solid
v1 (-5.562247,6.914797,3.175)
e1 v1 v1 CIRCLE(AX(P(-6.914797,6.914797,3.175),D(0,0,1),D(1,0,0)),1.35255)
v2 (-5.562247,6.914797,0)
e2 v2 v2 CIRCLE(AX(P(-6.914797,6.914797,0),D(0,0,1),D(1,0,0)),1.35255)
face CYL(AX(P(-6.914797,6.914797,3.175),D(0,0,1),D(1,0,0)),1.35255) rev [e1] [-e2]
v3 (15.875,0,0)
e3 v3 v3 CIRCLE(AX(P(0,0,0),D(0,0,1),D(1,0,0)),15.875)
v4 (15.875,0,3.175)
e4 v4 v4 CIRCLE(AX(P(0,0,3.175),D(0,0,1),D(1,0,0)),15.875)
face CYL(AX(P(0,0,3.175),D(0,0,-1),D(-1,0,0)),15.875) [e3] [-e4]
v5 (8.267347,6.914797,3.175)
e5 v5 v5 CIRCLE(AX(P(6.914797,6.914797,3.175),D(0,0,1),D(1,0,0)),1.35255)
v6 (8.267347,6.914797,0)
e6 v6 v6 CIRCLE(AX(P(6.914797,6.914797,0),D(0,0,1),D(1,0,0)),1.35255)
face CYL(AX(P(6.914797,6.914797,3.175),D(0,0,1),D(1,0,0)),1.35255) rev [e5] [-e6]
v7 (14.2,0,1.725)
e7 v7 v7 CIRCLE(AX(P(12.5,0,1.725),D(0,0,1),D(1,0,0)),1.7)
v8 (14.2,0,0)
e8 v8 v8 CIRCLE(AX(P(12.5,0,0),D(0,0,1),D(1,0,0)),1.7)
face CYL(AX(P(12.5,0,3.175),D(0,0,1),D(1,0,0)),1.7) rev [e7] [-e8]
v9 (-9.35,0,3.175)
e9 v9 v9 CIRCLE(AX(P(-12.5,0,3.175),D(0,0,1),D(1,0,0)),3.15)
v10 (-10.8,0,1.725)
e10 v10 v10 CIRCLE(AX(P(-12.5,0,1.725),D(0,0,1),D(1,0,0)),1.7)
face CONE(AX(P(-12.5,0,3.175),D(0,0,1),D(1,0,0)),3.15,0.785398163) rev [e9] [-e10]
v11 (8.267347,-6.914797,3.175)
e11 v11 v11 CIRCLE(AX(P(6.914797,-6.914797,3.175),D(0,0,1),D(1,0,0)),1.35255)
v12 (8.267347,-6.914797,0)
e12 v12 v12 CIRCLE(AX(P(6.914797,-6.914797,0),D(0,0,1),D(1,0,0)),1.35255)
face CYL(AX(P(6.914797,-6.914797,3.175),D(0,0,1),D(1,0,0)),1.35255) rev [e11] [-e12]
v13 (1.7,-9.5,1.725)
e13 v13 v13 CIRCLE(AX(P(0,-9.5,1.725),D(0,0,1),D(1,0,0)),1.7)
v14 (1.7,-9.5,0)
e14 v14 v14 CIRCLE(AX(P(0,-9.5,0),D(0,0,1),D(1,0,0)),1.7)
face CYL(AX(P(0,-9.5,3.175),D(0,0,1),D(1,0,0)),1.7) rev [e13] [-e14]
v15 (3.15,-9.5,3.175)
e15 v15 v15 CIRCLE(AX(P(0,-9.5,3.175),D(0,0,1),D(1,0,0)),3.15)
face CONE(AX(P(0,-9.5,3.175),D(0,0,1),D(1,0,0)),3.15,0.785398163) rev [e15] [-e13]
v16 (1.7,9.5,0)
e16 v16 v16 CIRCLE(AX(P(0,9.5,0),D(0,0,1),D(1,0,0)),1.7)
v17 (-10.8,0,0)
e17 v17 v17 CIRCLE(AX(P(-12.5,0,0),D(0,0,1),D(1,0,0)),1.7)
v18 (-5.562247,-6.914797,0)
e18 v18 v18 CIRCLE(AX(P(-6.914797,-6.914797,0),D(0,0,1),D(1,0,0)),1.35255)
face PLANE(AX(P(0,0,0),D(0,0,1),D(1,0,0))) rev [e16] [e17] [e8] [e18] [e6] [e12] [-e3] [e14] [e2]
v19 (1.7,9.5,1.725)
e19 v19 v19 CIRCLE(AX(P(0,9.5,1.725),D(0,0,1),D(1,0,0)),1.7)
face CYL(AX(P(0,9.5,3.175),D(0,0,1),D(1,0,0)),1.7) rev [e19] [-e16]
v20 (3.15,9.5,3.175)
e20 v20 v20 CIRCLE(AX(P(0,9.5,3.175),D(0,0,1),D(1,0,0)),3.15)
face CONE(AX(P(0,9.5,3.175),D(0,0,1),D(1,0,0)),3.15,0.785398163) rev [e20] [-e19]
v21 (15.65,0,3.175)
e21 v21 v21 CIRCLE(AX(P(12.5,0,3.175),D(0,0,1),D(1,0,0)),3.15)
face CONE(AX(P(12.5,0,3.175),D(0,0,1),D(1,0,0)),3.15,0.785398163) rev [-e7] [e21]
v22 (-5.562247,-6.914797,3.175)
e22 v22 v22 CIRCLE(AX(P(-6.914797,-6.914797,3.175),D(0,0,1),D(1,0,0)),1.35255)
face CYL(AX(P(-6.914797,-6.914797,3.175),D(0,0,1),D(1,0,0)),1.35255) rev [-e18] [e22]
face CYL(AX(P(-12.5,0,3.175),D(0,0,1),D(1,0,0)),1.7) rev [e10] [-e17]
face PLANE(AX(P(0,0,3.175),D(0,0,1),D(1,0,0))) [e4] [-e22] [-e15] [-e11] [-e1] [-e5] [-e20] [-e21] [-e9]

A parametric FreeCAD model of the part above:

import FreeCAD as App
import Part
import Sketcher

V = App.Vector
Q = App.Units.Quantity

doc = App.newDocument("Part")
body = doc.addObject("PartDesign::Body", "Body")

# Sketch on XY plane
sketch1 = body.newObject("Sketcher::SketchObject", "Sketch")
sketch1.AttachmentSupport = (doc.getObject("XY_Plane"), [""])
sketch1.MapMode = "FlatFace"
sketch1.addGeometry(Part.Circle(V(0, 0, 0), V(0, 0, 1), 16), False)
sketch1.addConstraint([
    Sketcher.Constraint("Coincident", 0, 3, -1, 1),
    Sketcher.Constraint("Diameter", 0, Q("1.25 in")),
])
pad1 = body.newObject("PartDesign::Pad", "Pad")
pad1.Profile = sketch1
pad1.Length = Q("0.125 in")

# Sketch on XY plane
sketch2 = body.newObject("Sketcher::SketchObject", "Sketch001")
sketch2.AttachmentSupport = (doc.getObject("XY_Plane"), [""])
sketch2.MapMode = "FlatFace"
sketch2.AttachmentOffset = App.Placement(V(0, 0, 0.125 * 25.4), App.Rotation())
sketch2.addGeometry([
    Part.Circle(V(0, 9.5, 0), V(0, 0, 1), 1.7),
    Part.Circle(V(0, -9.5, 0), V(0, 0, 1), 1.7),
    Part.Circle(V(12.5, 0, 0), V(0, 0, 1), 1.7),
    Part.Circle(V(-12.5, 0, 0), V(0, 0, 1), 1.7),
], False)
sketch2.addConstraint([
    Sketcher.Constraint("Equal", 0, 1),
    Sketcher.Constraint("Equal", 1, 2),
    Sketcher.Constraint("Equal", 2, 3),
    Sketcher.Constraint("Symmetric", 0, 3, 1, 3, -1, 1),
    Sketcher.Constraint("Symmetric", 2, 3, 3, 3, -1, 1),
    Sketcher.Constraint("PointOnObject", 0, 3, -2),
    Sketcher.Constraint("PointOnObject", 2, 3, -1),
    Sketcher.Constraint("Diameter", 0, Q("3.4 mm")),
    Sketcher.Constraint("DistanceY", -1, 1, 0, 3, Q("9.5 mm")),
    Sketcher.Constraint("DistanceX", -1, 1, 2, 3, Q("12.5 mm")),
])
doc.recompute()
hole = body.newObject("PartDesign::Hole", "Hole")
hole.Profile = sketch2
hole.ThreadType = "None"
hole.Diameter = 3.4
hole.DepthType = "ThroughAll"
hole.HoleCutType = "Countersink"
hole.HoleCutDiameter = 6.3
hole.HoleCutCountersinkAngle = 90

# Sketch on XY plane
sketch3 = body.newObject("Sketcher::SketchObject", "Sketch002")
sketch3.AttachmentSupport = (doc.getObject("XY_Plane"), [""])
sketch3.MapMode = "FlatFace"
sketch3.AttachmentOffset = App.Placement(V(0, 0, 0.125 * 25.4), App.Rotation())
sketch3.addGeometry([
    Part.Circle(V(-6.9, 6.9, 0), V(0, 0, 1), 1.4),
    Part.Circle(V(6.9, 6.9, 0), V(0, 0, 1), 1.4),
    Part.Circle(V(6.9, -6.9, 0), V(0, 0, 1), 1.4),
    Part.Circle(V(-6.9, -6.9, 0), V(0, 0, 1), 1.4),
], False)
sketch3.addConstraint([
    Sketcher.Constraint("Equal", 0, 1),
    Sketcher.Constraint("Equal", 1, 2),
    Sketcher.Constraint("Equal", 2, 3),
    Sketcher.Constraint("Symmetric", 0, 3, 2, 3, -1, 1),
    Sketcher.Constraint("Symmetric", 1, 3, 3, 3, -1, 1),
    Sketcher.Constraint("Symmetric", 0, 3, 1, 3, -2),
    Sketcher.Constraint("Diameter", 0, Q("0.1065 in")),
    Sketcher.Constraint("DistanceX", 0, 3, -1, 1, Q("6.914797 mm")),
    Sketcher.Constraint("DistanceY", -1, 1, 0, 3, Q("6.914797 mm")),
])
doc.recompute()
hole2 = body.newObject("PartDesign::Hole", "Hole001")
hole2.Profile = sketch3
hole2.ThreadType = "None"
hole2.Diameter = Q("0.1065 in")
hole2.DepthType = "ThroughAll"

doc.recompute()
